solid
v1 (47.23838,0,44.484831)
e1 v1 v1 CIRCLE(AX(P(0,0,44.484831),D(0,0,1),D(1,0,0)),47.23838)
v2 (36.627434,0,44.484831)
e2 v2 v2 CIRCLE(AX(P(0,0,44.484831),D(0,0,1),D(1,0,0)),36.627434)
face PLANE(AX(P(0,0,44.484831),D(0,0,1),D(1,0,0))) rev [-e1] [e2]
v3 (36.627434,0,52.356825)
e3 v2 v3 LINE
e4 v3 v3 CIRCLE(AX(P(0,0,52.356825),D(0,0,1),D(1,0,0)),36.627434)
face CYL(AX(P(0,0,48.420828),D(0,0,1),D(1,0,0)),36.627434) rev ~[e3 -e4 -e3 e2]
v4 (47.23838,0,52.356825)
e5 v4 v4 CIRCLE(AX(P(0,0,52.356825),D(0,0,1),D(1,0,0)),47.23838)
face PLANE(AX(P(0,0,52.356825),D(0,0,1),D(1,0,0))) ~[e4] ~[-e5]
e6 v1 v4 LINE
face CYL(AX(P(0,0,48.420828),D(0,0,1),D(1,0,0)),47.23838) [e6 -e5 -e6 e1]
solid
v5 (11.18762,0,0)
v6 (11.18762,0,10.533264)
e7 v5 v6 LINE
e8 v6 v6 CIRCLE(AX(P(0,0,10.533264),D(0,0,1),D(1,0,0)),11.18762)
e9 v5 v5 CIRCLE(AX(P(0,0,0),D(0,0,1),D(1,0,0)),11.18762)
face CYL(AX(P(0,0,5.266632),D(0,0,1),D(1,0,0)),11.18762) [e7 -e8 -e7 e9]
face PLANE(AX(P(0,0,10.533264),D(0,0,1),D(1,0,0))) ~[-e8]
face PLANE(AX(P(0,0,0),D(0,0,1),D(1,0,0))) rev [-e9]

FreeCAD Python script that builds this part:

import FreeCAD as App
import Part
import Sketcher

V = App.Vector
Q = App.Units.Quantity


def add_polygon(sketch, points):
    """Adds a closed chain of lines whose ends are joined by coincident constraints."""
    first, n = sketch.GeometryCount, len(points)
    for a, b in zip(points, points[1:] + points[:1]):
        sketch.addGeometry(Part.LineSegment(App.Vector(*a, 0), App.Vector(*b, 0)), False)
    for i in range(n):
        sketch.addConstraint(Sketcher.Constraint("Coincident", first + i, 2, first + (i + 1) % n, 1))

doc = App.newDocument("Part")
body = doc.addObject("PartDesign::Body", "Body")
body.AllowCompound = True

# Sketch on XZ plane
sketch1 = body.newObject("Sketcher::SketchObject", "Sketch")
sketch1.AttachmentSupport = (doc.getObject("XZ_Plane"), [""])
sketch1.MapMode = "FlatFace"
add_polygon(sketch1, [(0, 10.533264), (0, 0), (11.18762, 0), (11.18762, 10.533264)])  # lines 0-3
add_polygon(sketch1, [(36.627434, 52.356825), (36.627434, 44.484831), (47.23838, 44.484831), (47.23838, 52.356825)])  # lines 4-7
sketch1.addConstraint([
    Sketcher.Constraint("Vertical", 0),
    Sketcher.Constraint("Horizontal", 1),
    Sketcher.Constraint("Vertical", 2),
    Sketcher.Constraint("Horizontal", 3),
    Sketcher.Constraint("Vertical", 4),
    Sketcher.Constraint("Horizontal", 5),
    Sketcher.Constraint("Vertical", 6),
    Sketcher.Constraint("Horizontal", 7),
    Sketcher.Constraint("Coincident", 0, 2, -1, 1),
    Sketcher.Constraint("DistanceX", 1, 1, 1, 2, Q("11.18762 mm")),
    Sketcher.Constraint("DistanceX", 5, 1, 5, 2, Q("10.610946 mm")),
    Sketcher.Constraint("DistanceY", 0, 2, 0, 1, Q("10.533264 mm")),
    Sketcher.Constraint("DistanceY", 4, 2, 4, 1, Q("7.871993 mm")),
    Sketcher.Constraint("DistanceY", -1, 1, 4, 2, Q("44.484831 mm")),
    Sketcher.Constraint("DistanceX", -1, 1, 5, 2, Q("47.23838 mm")),
])
revolution = body.newObject("PartDesign::Revolution", "Revolution")
revolution.Profile = sketch1
revolution.ReferenceAxis = (sketch1, ["V_Axis"])
revolution.Angle = 360

doc.recompute()
